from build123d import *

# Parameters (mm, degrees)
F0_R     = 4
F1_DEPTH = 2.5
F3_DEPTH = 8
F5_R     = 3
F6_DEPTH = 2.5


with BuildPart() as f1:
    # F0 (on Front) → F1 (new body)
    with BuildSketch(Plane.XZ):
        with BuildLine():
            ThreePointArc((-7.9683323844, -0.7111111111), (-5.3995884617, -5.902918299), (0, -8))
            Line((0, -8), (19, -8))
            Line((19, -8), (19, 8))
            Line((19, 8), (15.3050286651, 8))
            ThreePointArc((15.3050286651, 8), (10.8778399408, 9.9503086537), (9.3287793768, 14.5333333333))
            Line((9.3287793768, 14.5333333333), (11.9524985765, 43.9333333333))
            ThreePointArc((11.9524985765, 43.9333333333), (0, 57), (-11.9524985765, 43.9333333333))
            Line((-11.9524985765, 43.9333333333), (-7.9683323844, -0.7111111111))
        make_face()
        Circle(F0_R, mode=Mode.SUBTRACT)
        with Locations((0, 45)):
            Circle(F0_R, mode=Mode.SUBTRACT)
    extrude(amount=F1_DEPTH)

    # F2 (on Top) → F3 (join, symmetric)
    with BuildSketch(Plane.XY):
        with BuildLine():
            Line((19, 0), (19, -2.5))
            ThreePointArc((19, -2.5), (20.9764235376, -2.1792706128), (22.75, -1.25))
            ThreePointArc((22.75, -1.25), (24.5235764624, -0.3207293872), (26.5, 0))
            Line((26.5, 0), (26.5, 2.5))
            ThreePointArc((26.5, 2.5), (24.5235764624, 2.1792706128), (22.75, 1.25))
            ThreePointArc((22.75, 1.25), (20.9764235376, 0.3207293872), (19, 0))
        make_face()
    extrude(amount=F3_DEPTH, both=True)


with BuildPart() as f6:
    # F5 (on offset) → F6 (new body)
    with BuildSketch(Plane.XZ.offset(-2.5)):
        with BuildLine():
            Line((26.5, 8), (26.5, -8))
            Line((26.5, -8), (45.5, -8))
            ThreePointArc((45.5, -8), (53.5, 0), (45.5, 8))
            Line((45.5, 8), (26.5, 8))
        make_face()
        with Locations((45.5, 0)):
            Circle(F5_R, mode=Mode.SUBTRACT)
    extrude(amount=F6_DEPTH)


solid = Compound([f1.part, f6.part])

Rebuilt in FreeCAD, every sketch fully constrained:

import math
import FreeCAD as App
import Part
import Sketcher
from FreeCAD import Vector
Q = App.Units.Quantity

doc = App.newDocument("Part")
body = doc.addObject("PartDesign::Body", "Body")

# Sketch on XZ plane
sketch1 = body.newObject("Sketcher::SketchObject", "Sketch")
sketch1.AttachmentSupport = (doc.getObject("XZ_Plane"), [""])
sketch1.MapMode = "FlatFace"
sketch1.addGeometry([
    Part.ArcOfCircle(Part.Circle(Vector(0, 0, 0), Vector(0, 0, 1), 8), math.radians(-174.900311), math.radians(-90)),  # 0
    Part.LineSegment(Vector(0, -8, 0), Vector(19, -8, 0)),  # 1
    Part.LineSegment(Vector(19, -8, 0), Vector(19, 8, 0)),  # 2
    Part.LineSegment(Vector(19, 8, 0), Vector(15.305029, 8, 0)),  # 3
    Part.ArcOfCircle(Part.Circle(Vector(15.305029, 14, 0), Vector(0, 0, 1), 6), math.radians(174.900311), math.radians(270)),  # 4
    Part.LineSegment(Vector(9.328779, 14.533333, 0), Vector(11.952499, 43.933333, 0)),  # 5
    Part.ArcOfCircle(Part.Circle(Vector(0, 45, 0), Vector(0, 0, 1), 12), math.radians(-5.099689), math.radians(185.099689)),  # 6
    Part.LineSegment(Vector(-11.952499, 43.933333, 0), Vector(-7.968332, -0.711111, 0)),  # 7
    Part.Circle(Vector(0, 0, 0), Vector(0, 0, 1), 4),  # 8
    Part.Circle(Vector(0, 45, 0), Vector(0, 0, 1), 4),  # 9
], False)
sketch1.addConstraint([
    Sketcher.Constraint("Tangent", 0, 2, 1, 1),
    Sketcher.Constraint("Coincident", 1, 2, 2, 1),
    Sketcher.Constraint("Coincident", 2, 2, 3, 1),
    Sketcher.Constraint("Tangent", 3, 2, 4, 2),
    Sketcher.Constraint("Tangent", 4, 1, 5, 1),
    Sketcher.Constraint("Tangent", 5, 2, 6, 1),
    Sketcher.Constraint("Tangent", 6, 2, 7, 1),
    Sketcher.Constraint("Tangent", 7, 2, 0, 1),
    Sketcher.Constraint("Horizontal", 1),
    Sketcher.Constraint("Vertical", 2),
    Sketcher.Constraint("Horizontal", 3),
    Sketcher.Constraint("Coincident", 0, 3, -1, 1),
    Sketcher.Constraint("Coincident", 8, 3, -1, 1),
    Sketcher.Constraint("Coincident", 9, 3, 6, 3),
    Sketcher.Constraint("Equal", 8, 9),
    Sketcher.Constraint("Symmetric", 5, 2, 6, 2, -2),
    Sketcher.Constraint("Diameter", 8, Q("8 mm")),
    Sketcher.Constraint("Radius", 0, Q("8 mm")),
    Sketcher.Constraint("Radius", 4, Q("6 mm")),
    Sketcher.Constraint("Radius", 6, Q("12 mm")),
    Sketcher.Constraint("DistanceX", 1, 1, 1, 2, Q("19 mm")),
    Sketcher.Constraint("DistanceY", 2, 1, 2, 2, Q("16 mm")),
    Sketcher.Constraint("DistanceY", -1, 1, 6, 3, Q("45 mm")),
])
pad1 = body.newObject("PartDesign::Pad", "Pad")
pad1.Profile = sketch1
pad1.Length = 2.5

# Sketch on XY plane
sketch2 = body.newObject("Sketcher::SketchObject", "Sketch001")
sketch2.AttachmentSupport = (doc.getObject("XY_Plane"), [""])
sketch2.MapMode = "FlatFace"
sketch2.addGeometry([
    Part.LineSegment(Vector(19, 0, 0), Vector(19, -2.5, 0)),  # 0
    Part.ArcOfCircle(Part.Circle(Vector(19, 3.75, 0), Vector(0, 0, 1), 6.25), math.radians(-90), math.radians(-53.130102)),  # 1
    Part.ArcOfCircle(Part.Circle(Vector(26.5, -6.25, 0), Vector(0, 0, 1), 6.25), math.radians(90), math.radians(126.869898)),  # 2
    Part.LineSegment(Vector(26.5, 0, 0), Vector(26.5, 2.5, 0)),  # 3
    Part.ArcOfCircle(Part.Circle(Vector(26.5, -3.75, 0), Vector(0, 0, 1), 6.25), math.radians(90), math.radians(126.869898)),  # 4
    Part.ArcOfCircle(Part.Circle(Vector(19, 6.25, 0), Vector(0, 0, 1), 6.25), math.radians(-90), math.radians(-53.130102)),  # 5
], False)
sketch2.addConstraint([
    Sketcher.Constraint("Coincident", 0, 2, 1, 1),
    Sketcher.Constraint("Tangent", 1, 2, 2, 2),
    Sketcher.Constraint("Coincident", 2, 1, 3, 1),
    Sketcher.Constraint("Coincident", 3, 2, 4, 1),
    Sketcher.Constraint("Tangent", 4, 2, 5, 2),
    Sketcher.Constraint("Coincident", 5, 1, 0, 1),
    Sketcher.Constraint("Vertical", 0),
    Sketcher.Constraint("Vertical", 3),
    Sketcher.Constraint("Equal", 1, 2),
    Sketcher.Constraint("Equal", 2, 4),
    Sketcher.Constraint("Equal", 4, 5),
    Sketcher.Constraint("Symmetric", 1, 2, 4, 2, -1),
    Sketcher.Constraint("PointOnObject", 2, 1, -1),
    Sketcher.Constraint("PointOnObject", 5, 1, -1),
    Sketcher.Constraint("Vertical", 5, 3, 0, 2),
    Sketcher.Constraint("Vertical", 4, 3, 2, 1),
    Sketcher.Constraint("Radius", 1, Q("6.25 mm")),
    Sketcher.Constraint("DistanceY", 0, 2, 0, 1, Q("2.5 mm")),
    Sketcher.Constraint("DistanceX", -1, 1, 1, 3, Q("19 mm")),
])
pad2 = body.newObject("PartDesign::Pad", "Pad001")
pad2.Profile = sketch2
pad2.Length = 16
pad2.Midplane = True
body2 = doc.addObject("PartDesign::Body", "Body001")

# Sketch on XZ plane
sketch3 = body2.newObject("Sketcher::SketchObject", "Sketch002")
sketch3.AttachmentSupport = (doc.getObject("XZ_Plane001"), [""])
sketch3.MapMode = "FlatFace"
sketch3.AttachmentOffset = App.Placement(Vector(0, 0, -2.5), App.Rotation())
sketch3.addGeometry([
    Part.LineSegment(Vector(26.5, 8, 0), Vector(26.5, -8, 0)),  # 0
    Part.LineSegment(Vector(26.5, -8, 0), Vector(45.5, -8, 0)),  # 1
    Part.ArcOfCircle(Part.Circle(Vector(45.5, 0, 0), Vector(0, 0, 1), 8), math.radians(-90), math.radians(90)),  # 2
    Part.LineSegment(Vector(45.5, 8, 0), Vector(26.5, 8, 0)),  # 3
    Part.Circle(Vector(45.5, 0, 0), Vector(0, 0, 1), 3),  # 4
], False)
sketch3.addConstraint([
    Sketcher.Constraint("Coincident", 0, 2, 1, 1),
    Sketcher.Constraint("Tangent", 1, 2, 2, 1),
    Sketcher.Constraint("Tangent", 2, 2, 3, 1),
    Sketcher.Constraint("Coincident", 3, 2, 0, 1),
    Sketcher.Constraint("Vertical", 0),
    Sketcher.Constraint("Horizontal", 1),
    Sketcher.Constraint("Horizontal", 3),
    Sketcher.Constraint("Coincident", 4, 3, 2, 3),
    Sketcher.Constraint("PointOnObject", 2, 3, -1),
    Sketcher.Constraint("Diameter", 4, Q("6 mm")),
    Sketcher.Constraint("Radius", 2, Q("8 mm")),
    Sketcher.Constraint("DistanceX", 1, 1, 1, 2, Q("19 mm")),
    Sketcher.Constraint("DistanceX", -1, 1, 2, 3, Q("45.5 mm")),
])
pad3 = body2.newObject("PartDesign::Pad", "Pad002")
pad3.Profile = sketch3
pad3.Length = 2.5

doc.recompute()
